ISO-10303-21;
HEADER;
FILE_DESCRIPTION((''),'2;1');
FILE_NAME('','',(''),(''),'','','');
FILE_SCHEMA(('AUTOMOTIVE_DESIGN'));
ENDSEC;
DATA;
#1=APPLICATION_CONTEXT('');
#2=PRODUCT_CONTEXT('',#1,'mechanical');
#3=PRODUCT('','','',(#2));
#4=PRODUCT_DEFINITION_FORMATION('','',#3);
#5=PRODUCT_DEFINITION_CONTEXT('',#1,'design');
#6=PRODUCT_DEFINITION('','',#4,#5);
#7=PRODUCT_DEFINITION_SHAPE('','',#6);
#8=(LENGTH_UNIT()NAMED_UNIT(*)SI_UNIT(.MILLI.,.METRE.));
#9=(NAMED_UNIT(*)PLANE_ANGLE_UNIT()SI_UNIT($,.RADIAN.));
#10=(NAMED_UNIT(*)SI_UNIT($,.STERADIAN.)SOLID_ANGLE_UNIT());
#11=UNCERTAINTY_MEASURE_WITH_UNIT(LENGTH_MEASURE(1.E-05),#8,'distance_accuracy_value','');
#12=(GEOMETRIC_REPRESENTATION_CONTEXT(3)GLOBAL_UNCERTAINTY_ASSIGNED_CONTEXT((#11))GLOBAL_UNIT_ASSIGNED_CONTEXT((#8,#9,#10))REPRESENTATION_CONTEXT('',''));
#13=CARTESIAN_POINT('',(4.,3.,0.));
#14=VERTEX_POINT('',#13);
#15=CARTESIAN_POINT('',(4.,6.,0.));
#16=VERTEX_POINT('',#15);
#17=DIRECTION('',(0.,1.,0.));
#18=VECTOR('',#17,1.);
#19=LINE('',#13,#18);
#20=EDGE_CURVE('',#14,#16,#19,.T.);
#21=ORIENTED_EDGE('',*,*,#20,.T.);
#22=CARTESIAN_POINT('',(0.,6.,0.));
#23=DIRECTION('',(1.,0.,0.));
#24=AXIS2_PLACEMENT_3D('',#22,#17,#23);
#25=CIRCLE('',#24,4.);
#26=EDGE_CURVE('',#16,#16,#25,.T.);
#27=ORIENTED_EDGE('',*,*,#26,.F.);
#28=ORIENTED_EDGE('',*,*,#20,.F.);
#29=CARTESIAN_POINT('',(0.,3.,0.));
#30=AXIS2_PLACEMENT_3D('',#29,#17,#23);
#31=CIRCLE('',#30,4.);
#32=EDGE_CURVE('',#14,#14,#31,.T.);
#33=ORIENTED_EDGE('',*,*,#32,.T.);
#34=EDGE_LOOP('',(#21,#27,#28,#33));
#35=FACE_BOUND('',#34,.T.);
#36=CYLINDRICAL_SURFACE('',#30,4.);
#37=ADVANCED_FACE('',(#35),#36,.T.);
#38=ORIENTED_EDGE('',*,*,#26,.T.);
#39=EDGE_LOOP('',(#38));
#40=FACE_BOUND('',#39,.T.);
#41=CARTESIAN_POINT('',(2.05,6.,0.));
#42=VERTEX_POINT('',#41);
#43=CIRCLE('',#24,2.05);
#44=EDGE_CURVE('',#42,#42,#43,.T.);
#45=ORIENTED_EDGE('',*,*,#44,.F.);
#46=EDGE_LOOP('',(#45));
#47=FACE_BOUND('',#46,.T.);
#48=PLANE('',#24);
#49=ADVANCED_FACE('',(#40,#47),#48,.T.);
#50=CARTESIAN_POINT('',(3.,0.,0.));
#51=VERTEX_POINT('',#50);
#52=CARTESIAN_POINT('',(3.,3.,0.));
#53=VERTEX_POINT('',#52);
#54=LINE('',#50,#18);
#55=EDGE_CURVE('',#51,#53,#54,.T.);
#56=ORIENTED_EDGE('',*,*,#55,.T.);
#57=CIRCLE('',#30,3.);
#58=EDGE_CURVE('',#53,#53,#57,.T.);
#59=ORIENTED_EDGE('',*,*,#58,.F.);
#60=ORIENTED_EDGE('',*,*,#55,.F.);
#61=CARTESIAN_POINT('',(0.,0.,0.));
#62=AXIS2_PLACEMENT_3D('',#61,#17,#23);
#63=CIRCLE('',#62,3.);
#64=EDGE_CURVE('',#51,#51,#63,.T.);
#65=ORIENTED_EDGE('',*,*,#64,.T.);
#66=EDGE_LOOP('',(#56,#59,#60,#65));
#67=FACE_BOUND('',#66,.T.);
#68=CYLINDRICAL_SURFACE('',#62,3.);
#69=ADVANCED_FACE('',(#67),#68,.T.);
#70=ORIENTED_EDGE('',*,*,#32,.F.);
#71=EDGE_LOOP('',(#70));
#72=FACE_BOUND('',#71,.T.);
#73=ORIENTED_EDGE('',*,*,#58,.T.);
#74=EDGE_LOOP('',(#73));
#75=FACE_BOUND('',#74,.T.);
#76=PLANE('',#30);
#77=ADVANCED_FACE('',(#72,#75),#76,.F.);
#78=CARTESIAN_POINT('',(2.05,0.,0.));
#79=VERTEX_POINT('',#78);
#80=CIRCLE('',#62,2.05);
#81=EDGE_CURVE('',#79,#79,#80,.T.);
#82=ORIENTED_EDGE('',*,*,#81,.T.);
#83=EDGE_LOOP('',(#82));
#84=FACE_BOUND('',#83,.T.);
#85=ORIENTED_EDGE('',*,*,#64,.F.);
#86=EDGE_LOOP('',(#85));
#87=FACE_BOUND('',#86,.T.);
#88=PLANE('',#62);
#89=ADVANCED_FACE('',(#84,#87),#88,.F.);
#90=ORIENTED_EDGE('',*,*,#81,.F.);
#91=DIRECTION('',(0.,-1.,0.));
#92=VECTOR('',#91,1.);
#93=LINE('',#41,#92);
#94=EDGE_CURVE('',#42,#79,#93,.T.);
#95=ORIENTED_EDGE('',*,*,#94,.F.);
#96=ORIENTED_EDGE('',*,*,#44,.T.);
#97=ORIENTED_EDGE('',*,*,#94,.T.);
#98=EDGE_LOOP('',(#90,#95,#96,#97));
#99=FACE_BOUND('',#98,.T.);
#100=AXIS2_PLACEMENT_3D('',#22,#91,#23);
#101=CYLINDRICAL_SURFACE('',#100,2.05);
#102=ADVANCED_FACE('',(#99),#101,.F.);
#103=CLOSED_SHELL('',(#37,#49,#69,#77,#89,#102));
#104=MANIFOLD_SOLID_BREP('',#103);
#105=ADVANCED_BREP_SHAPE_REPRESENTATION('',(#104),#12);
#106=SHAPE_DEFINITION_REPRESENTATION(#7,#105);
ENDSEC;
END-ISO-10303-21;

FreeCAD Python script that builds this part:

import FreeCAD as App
import Part
import Sketcher
from FreeCAD import Vector
Q = App.Units.Quantity

doc = App.newDocument("Part")
body = doc.addObject("PartDesign::Body", "Body")

# Sketch on XY plane
sketch1 = body.newObject("Sketcher::SketchObject", "Sketch")
sketch1.AttachmentSupport = (doc.getObject("XY_Plane"), [""])
sketch1.MapMode = "FlatFace"
sketch1.addGeometry(Part.LineSegment(Vector(2, 0, 0), Vector(3, 0, 0)), False)
sketch1.addGeometry(Part.LineSegment(Vector(3, 0, 0), Vector(3, 3, 0)), False)
sketch1.addGeometry(Part.LineSegment(Vector(3, 3, 0), Vector(4, 3, 0)), False)
sketch1.addGeometry(Part.LineSegment(Vector(4, 3, 0), Vector(4, 6, 0)), False)
sketch1.addGeometry(Part.LineSegment(Vector(4, 6, 0), Vector(2, 6, 0)), False)
sketch1.addGeometry(Part.LineSegment(Vector(2, 6, 0), Vector(2, 0, 0)), False)
sketch1.addConstraint(Sketcher.Constraint("Coincident", 0, 2, 1, 1))
sketch1.addConstraint(Sketcher.Constraint("Coincident", 1, 2, 2, 1))
sketch1.addConstraint(Sketcher.Constraint("Coincident", 2, 2, 3, 1))
sketch1.addConstraint(Sketcher.Constraint("Coincident", 3, 2, 4, 1))
sketch1.addConstraint(Sketcher.Constraint("Coincident", 4, 2, 5, 1))
sketch1.addConstraint(Sketcher.Constraint("Coincident", 5, 2, 0, 1))
sketch1.addConstraint(Sketcher.Constraint("Horizontal", 0))
sketch1.addConstraint(Sketcher.Constraint("Vertical", 1))
sketch1.addConstraint(Sketcher.Constraint("Horizontal", 2))
sketch1.addConstraint(Sketcher.Constraint("Vertical", 3))
sketch1.addConstraint(Sketcher.Constraint("Horizontal", 4))
sketch1.addConstraint(Sketcher.Constraint("Vertical", 5))
sketch1.addConstraint(Sketcher.Constraint("PointOnObject", 0, 2, -1))
sketch1.addConstraint(Sketcher.Constraint("Equal", 1, 3))
sketch1.addConstraint(Sketcher.Constraint("DistanceY", 1, 1, 1, 2, Q("3 mm")))
sketch1.addConstraint(Sketcher.Constraint("DistanceX", -1, 1, 0, 2, Q("3 mm")))
sketch1.addConstraint(Sketcher.Constraint("DistanceX", 2, 1, 2, 2, Q("1 mm")))
sketch1.addConstraint(Sketcher.Constraint("DistanceX", 0, 1, 0, 2, Q("0.95 mm")))
revolution = body.newObject("PartDesign::Revolution", "Revolution")
revolution.Profile = sketch1
revolution.ReferenceAxis = (sketch1, ["V_Axis"])
revolution.Angle = 360

doc.recompute()
